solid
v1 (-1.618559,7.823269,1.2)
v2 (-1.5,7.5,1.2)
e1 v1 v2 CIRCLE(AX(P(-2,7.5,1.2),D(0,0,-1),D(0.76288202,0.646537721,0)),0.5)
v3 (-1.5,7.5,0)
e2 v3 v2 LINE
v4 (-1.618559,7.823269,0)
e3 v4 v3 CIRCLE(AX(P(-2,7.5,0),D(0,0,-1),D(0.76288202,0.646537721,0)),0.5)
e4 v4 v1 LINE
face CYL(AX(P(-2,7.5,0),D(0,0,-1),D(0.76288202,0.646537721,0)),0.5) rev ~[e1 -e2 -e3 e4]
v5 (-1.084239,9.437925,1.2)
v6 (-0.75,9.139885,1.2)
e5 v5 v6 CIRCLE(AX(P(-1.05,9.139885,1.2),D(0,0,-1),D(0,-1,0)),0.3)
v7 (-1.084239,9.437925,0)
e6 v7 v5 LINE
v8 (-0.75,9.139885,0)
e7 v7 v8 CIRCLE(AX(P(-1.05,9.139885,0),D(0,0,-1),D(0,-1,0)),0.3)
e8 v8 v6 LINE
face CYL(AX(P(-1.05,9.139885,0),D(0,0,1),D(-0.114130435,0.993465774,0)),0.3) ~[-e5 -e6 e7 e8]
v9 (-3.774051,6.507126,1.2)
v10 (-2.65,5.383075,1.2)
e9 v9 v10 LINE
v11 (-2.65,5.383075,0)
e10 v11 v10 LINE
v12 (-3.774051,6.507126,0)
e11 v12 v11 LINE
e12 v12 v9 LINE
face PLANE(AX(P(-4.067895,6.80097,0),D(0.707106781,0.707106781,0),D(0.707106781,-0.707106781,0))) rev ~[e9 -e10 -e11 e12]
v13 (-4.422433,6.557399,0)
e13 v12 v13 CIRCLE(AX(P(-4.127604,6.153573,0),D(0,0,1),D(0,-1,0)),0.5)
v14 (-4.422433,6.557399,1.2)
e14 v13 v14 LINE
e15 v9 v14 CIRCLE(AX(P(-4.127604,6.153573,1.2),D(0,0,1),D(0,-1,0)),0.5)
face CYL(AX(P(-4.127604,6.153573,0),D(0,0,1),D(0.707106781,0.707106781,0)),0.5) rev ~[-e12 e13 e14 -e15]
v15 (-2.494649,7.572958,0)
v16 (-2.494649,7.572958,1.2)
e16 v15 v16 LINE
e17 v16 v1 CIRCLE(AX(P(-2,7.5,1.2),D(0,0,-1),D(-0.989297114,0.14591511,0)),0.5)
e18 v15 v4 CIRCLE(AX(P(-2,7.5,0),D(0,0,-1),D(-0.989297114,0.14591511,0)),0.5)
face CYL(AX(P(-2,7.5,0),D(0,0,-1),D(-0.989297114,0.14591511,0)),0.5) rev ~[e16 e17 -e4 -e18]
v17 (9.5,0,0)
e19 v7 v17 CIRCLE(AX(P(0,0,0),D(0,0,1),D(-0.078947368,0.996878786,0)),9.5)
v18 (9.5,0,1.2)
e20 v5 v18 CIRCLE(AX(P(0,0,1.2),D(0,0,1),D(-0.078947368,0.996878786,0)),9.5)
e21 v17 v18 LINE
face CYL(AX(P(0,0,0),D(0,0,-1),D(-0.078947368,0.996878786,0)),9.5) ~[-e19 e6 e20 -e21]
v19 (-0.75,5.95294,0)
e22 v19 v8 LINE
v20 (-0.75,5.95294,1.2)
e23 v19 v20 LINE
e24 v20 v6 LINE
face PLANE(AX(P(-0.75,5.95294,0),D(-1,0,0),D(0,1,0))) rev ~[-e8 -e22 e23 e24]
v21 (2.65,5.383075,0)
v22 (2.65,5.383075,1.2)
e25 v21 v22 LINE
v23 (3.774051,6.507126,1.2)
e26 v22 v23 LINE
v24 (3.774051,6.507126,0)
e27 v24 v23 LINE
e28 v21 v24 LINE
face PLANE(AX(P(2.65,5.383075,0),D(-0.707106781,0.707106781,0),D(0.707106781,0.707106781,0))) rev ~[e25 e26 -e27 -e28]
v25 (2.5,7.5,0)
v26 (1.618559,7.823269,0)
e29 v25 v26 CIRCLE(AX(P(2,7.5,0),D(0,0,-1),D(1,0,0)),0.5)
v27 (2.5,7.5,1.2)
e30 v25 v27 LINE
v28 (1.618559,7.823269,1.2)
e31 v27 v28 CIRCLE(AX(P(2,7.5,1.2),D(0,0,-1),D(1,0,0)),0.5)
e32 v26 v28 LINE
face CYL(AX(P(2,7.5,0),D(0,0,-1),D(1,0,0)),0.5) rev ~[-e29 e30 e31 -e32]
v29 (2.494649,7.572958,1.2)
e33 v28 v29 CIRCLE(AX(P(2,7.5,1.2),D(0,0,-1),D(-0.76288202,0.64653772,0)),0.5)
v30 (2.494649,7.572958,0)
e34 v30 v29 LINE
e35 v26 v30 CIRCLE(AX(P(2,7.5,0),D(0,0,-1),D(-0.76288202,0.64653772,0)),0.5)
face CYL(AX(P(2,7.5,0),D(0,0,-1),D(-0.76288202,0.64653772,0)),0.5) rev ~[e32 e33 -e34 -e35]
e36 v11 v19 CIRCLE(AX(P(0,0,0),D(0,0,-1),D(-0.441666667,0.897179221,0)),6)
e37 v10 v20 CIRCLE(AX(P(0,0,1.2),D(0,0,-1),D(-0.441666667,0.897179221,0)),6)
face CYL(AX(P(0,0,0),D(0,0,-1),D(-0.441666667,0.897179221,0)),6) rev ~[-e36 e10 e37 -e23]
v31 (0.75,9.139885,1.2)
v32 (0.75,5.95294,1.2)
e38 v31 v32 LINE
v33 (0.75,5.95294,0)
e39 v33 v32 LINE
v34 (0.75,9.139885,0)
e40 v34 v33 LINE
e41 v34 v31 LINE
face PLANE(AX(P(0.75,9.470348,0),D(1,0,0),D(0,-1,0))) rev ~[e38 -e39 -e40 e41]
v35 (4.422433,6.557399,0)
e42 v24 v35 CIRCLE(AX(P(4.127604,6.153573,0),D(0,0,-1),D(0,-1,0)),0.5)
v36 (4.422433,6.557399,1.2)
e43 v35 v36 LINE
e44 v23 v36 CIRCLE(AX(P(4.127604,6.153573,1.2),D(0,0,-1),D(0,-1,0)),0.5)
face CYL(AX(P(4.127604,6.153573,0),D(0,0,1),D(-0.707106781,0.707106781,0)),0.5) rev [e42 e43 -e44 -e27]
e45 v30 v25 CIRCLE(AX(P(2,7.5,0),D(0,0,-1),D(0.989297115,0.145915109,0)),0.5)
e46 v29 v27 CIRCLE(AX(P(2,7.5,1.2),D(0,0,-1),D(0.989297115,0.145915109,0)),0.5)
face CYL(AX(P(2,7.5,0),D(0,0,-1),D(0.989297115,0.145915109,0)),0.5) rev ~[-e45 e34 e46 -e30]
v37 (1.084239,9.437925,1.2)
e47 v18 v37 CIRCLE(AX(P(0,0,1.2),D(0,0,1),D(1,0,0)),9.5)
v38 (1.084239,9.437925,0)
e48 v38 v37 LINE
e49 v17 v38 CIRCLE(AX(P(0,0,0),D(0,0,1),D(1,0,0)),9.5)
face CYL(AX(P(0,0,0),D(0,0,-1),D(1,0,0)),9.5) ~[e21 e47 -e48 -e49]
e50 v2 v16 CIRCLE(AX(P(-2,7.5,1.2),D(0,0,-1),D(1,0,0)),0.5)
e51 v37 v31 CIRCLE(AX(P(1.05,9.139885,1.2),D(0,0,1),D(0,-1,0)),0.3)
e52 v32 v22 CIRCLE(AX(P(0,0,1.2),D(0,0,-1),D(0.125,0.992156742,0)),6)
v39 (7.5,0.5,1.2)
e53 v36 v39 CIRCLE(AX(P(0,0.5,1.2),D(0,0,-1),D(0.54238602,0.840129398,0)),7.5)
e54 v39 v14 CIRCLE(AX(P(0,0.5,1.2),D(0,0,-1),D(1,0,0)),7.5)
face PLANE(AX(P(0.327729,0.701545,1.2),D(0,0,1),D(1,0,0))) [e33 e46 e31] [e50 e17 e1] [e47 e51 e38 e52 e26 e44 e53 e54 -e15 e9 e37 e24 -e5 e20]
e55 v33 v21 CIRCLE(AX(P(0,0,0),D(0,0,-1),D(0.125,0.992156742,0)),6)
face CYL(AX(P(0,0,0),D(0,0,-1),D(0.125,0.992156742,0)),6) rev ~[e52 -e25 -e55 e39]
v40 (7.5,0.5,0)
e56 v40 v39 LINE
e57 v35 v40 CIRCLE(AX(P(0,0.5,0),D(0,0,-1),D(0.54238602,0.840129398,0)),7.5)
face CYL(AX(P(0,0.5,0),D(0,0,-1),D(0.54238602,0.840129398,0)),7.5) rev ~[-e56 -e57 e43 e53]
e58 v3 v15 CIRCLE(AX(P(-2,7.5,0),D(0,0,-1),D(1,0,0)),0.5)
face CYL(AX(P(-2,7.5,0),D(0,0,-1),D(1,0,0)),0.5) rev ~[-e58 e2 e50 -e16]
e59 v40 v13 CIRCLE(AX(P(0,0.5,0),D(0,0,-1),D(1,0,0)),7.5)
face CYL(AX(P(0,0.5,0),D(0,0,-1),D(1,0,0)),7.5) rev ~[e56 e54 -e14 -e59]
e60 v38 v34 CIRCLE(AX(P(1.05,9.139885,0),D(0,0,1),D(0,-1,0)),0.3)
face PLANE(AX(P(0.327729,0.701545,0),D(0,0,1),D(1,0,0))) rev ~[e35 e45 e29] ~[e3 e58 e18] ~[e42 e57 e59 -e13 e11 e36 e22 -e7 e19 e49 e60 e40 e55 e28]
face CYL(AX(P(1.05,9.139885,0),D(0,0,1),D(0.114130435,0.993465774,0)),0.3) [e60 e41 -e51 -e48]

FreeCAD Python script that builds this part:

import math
import FreeCAD as App
import Part
import Sketcher

V = App.Vector
Q = App.Units.Quantity


def edges_at(feature, points):
    """Names of the edges that pass closest to the given points."""
    edges = feature.Shape.Edges
    near = lambda p: min(range(len(edges)), key=lambda i: edges[i].distToShape(Part.Vertex(*p))[0])
    return sorted({f"Edge{near(p) + 1}" for p in points})

doc = App.newDocument("Part")
params = doc.addObject("Spreadsheet::Sheet", "Params")
for row, (alias, value) in enumerate([
    ("sketch1_radius", "6 mm"),
    ("sketch1_radius2", "9.5 mm"),
    ("sketch1_radius3", "7.5 mm"),
    ("sketch1_radius4", "0.5 mm"),
    ("pad1_length", "1.2 mm"),
    ("fillet_radius", "0.3 mm"),
    ("fillet2_radius", "0.5 mm"),
], start=1):
    params.set(f"A{row}", alias)
    params.set(f"B{row}", "=" + value)
    params.setAlias(f"B{row}", alias)

body = doc.addObject("PartDesign::Body", "Body")

sketch1 = body.newObject("Sketcher::SketchObject", "Sketch")
sketch1.AttachmentSupport = (doc.getObject("XY_Plane"), [""])
sketch1.MapMode = "FlatFace"
sketch1.addGeometry([
    Part.ArcOfCircle(Part.Circle(V(0, 0, 0), V(0, 0, 1), 9.5), math.radians(94.528063), math.radians(360)),
    Part.ArcOfCircle(Part.Circle(V(0, 0, 0), V(0, 0, 1), 9.5), math.radians(0), math.radians(85.471937)),
    Part.LineSegment(V(0.75, 9.470348, 0), V(0.75, 5.95294, 0)),
    Part.ArcOfCircle(Part.Circle(V(0, 0, 0), V(0, 0, 1), 6), math.radians(63.789731), math.radians(82.819244)),
    Part.LineSegment(V(2.65, 5.383075, 0), V(4.067895, 6.80097, 0)),
    Part.ArcOfCircle(Part.Circle(V(0, 0.5, 0), V(0, 0, 1), 7.5), math.radians(0), math.radians(57.153786)),
    Part.ArcOfCircle(Part.Circle(V(0, 0.5, 0), V(0, 0, 1), 7.5), math.radians(122.846214), math.radians(360)),
    Part.LineSegment(V(-4.067895, 6.80097, 0), V(-2.65, 5.383075, 0)),
    Part.ArcOfCircle(Part.Circle(V(0, 0, 0), V(0, 0, 1), 6), math.radians(97.180756), math.radians(116.210269)),
    Part.LineSegment(V(-0.75, 5.95294, 0), V(-0.75, 9.470348, 0)),
    Part.ArcOfCircle(Part.Circle(V(2, 7.5, 0), V(0, 0, 1), 0.5), math.radians(8.390275), math.radians(139.718933)),
    Part.ArcOfCircle(Part.Circle(V(2, 7.5, 0), V(0, 0, 1), 0.5), math.radians(0), math.radians(8.390275)),
    Part.ArcOfCircle(Part.Circle(V(2, 7.5, 0), V(0, 0, 1), 0.5), math.radians(139.718933), math.radians(360)),
    Part.ArcOfCircle(Part.Circle(V(-2, 7.5, 0), V(0, 0, 1), 0.5), math.radians(40.281067), math.radians(171.609725)),
    Part.ArcOfCircle(Part.Circle(V(-2, 7.5, 0), V(0, 0, 1), 0.5), math.radians(0), math.radians(40.281067)),
    Part.ArcOfCircle(Part.Circle(V(-2, 7.5, 0), V(0, 0, 1), 0.5), math.radians(171.609725), math.radians(360)),
], False)
sketch1.addConstraint([
    Sketcher.Constraint("Tangent", 0, 2, 1, 1),
    Sketcher.Constraint("Coincident", 1, 2, 2, 1),
    Sketcher.Constraint("Coincident", 2, 2, 3, 2),
    Sketcher.Constraint("Coincident", 3, 1, 4, 1),
    Sketcher.Constraint("Coincident", 4, 2, 5, 2),
    Sketcher.Constraint("Tangent", 5, 1, 6, 2),
    Sketcher.Constraint("Coincident", 6, 1, 7, 1),
    Sketcher.Constraint("Coincident", 7, 2, 8, 2),
    Sketcher.Constraint("Coincident", 8, 1, 9, 1),
    Sketcher.Constraint("Coincident", 9, 2, 0, 1),
    Sketcher.Constraint("Tangent", 10, 1, 11, 2),
    Sketcher.Constraint("Tangent", 11, 1, 12, 2),
    Sketcher.Constraint("Tangent", 12, 1, 10, 2),
    Sketcher.Constraint("Tangent", 13, 1, 14, 2),
    Sketcher.Constraint("Tangent", 14, 1, 15, 2),
    Sketcher.Constraint("Tangent", 15, 1, 13, 2),
    Sketcher.Constraint("Vertical", 2),
    Sketcher.Constraint("Vertical", 9),
    Sketcher.Constraint("Coincident", 0, 3, -1, 1),
    Sketcher.Constraint("Coincident", 3, 3, -1, 1),
    Sketcher.Constraint("Coincident", 8, 3, -1, 1),
    Sketcher.Constraint("Equal", 0, 1),
    Sketcher.Constraint("Equal", 5, 6),
    Sketcher.Constraint("Equal", 3, 8),
    Sketcher.Constraint("Equal", 12, 13),
    Sketcher.Constraint("Symmetric", 10, 3, 13, 3, -2),
    Sketcher.Constraint("Symmetric", 4, 2, 6, 1, -2),
    Sketcher.Constraint("PointOnObject", 0, 2, -1),
    Sketcher.Constraint("Perpendicular", 4, 7),
    Sketcher.Constraint("Horizontal", 6, 3, 5, 1),
    Sketcher.Constraint("Horizontal", 3, 1, 7, 2),
    Sketcher.Constraint("Horizontal", 2, 2, 8, 1),
    Sketcher.Constraint("Horizontal", 15, 3, 11, 1),
    Sketcher.Constraint("Horizontal", 12, 1, 13, 1),
    Sketcher.Constraint("Horizontal", 11, 1, 14, 1),
    Sketcher.Constraint("Horizontal", 10, 1, 15, 1),
    Sketcher.Constraint("Radius", 3, Q("6 mm")),
    Sketcher.Constraint("Radius", 0, Q("9.5 mm")),
    Sketcher.Constraint("Radius", 5, Q("7.5 mm")),
    Sketcher.Constraint("Radius", 10, Q("0.5 mm")),
    Sketcher.Constraint("DistanceX", -1, 1, 10, 3, Q("2 mm")),
    Sketcher.Constraint("DistanceY", 5, 3, 10, 3, Q("7 mm")),
    Sketcher.Constraint("DistanceY", -1, 1, 5, 3, Q("0.5 mm")),
    Sketcher.Constraint("DistanceX", 2, 2, 3, 1, Q("1.9 mm")),
    Sketcher.Constraint("DistanceX", 7, 2, 2, 2, Q("3.4 mm")),
    Sketcher.Constraint("DistanceX", -1, 1, 10, 1, Q("2.494649 mm")),
    Sketcher.Constraint("DistanceX", -1, 1, 12, 1, Q("1.618559 mm")),
])
sketch1.setExpression("Constraints[36]", "Params.sketch1_radius")
sketch1.setExpression("Constraints[37]", "Params.sketch1_radius2")
sketch1.setExpression("Constraints[38]", "Params.sketch1_radius3")
sketch1.setExpression("Constraints[39]", "Params.sketch1_radius4")
pad1 = body.newObject("PartDesign::Pad", "Pad")
pad1.Profile = sketch1
pad1.setExpression("Length", "Params.pad1_length")
doc.recompute()

fillet = body.newObject("PartDesign::Fillet", "Fillet")
fillet.Base = (pad1, edges_at(pad1, [(-0.75, 9.47, 0.6), (0.75, 9.47, 0.6)]))
fillet.setExpression("Radius", "Params.fillet_radius")
doc.recompute()

fillet2 = body.newObject("PartDesign::Fillet", "Fillet001")
fillet2.Base = (fillet, edges_at(fillet, [(-4.068, 6.801, 0.6), (4.068, 6.801, 0.6)]))
fillet2.setExpression("Radius", "Params.fillet2_radius")

doc.recompute()
